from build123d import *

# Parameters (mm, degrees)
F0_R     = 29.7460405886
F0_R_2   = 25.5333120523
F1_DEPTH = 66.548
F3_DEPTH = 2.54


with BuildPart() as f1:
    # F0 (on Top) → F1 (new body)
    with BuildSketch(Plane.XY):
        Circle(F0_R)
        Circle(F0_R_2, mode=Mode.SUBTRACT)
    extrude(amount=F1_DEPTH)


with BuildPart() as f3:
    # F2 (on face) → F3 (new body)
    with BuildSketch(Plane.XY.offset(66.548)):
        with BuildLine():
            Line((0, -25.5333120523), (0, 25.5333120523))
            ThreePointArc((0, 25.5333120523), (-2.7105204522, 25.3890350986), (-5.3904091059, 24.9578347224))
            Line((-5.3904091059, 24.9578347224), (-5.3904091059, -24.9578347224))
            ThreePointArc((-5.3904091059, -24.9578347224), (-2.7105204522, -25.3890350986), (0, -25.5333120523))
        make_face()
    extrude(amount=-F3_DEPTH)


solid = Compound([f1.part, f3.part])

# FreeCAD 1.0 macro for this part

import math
import FreeCAD as App
import Part
import Sketcher
from FreeCAD import Vector
Q = App.Units.Quantity

doc = App.newDocument("Part")
params = doc.addObject("Spreadsheet::Sheet", "Params")
for row, (alias, value) in enumerate([
    ("pad1_length", "2.62 in"),
    ("pad2_length", "0.1 in"),
], start=1):
    params.set(f"A{row}", alias)
    params.set(f"B{row}", "=" + value)
    params.setAlias(f"B{row}", alias)

body = doc.addObject("PartDesign::Body", "Body")

sketch1 = doc.addObject("Sketcher::SketchObject", "Sketch")
body.addObject(sketch1)
sketch1.AttachmentSupport = (doc.XY_Plane, [""])
sketch1.MapMode = "FlatFace"
sketch1.addGeometry([
    Part.Circle(Vector(0, 0, 0), Vector(0, 0, 1), 30),
    Part.Circle(Vector(0, 0, 0), Vector(0, 0, 1), 26),
], False)
sketch1.addConstraint([
    Sketcher.Constraint("Coincident", 0, 3, -1, 1),
    Sketcher.Constraint("Coincident", 1, 3, -1, 1),
    Sketcher.Constraint("Diameter", 0, Q("59.492081 mm")),
    Sketcher.Constraint("Diameter", 1, Q("51.066624 mm")),
])
pad1 = doc.addObject("PartDesign::Pad", "Pad")
body.addObject(pad1)
pad1.Profile = sketch1
pad1.setExpression("Length", "Params.pad1_length")
body2 = doc.addObject("PartDesign::Body", "Body001")

sketch2 = doc.addObject("Sketcher::SketchObject", "Sketch001")
body2.addObject(sketch2)
sketch2.AttachmentSupport = (doc.getObject("XY_Plane001"), [""])
sketch2.MapMode = "FlatFace"
sketch2.AttachmentOffset = App.Placement(Vector(0, 0, 2.62 * 25.4), App.Rotation())
sketch2.addGeometry([
    Part.LineSegment(Vector(0, -26, 0), Vector(0, 26, 0)),
    Part.ArcOfCircle(Part.Circle(Vector(0, 0, 0), Vector(0, 0, 1), 26), math.radians(90), math.radians(102.19)),
    Part.LineSegment(Vector(-5, 25, 0), Vector(-5, -25, 0)),
    Part.ArcOfCircle(Part.Circle(Vector(0, 0, 0), Vector(0, 0, 1), 26), math.radians(-102.19), math.radians(-90)),
], False)
sketch2.addConstraint([
    Sketcher.Constraint("Coincident", 0, 2, 1, 1),
    Sketcher.Constraint("Coincident", 1, 2, 2, 1),
    Sketcher.Constraint("Coincident", 2, 2, 3, 1),
    Sketcher.Constraint("Coincident", 3, 2, 0, 1),
    Sketcher.Constraint("Vertical", 0),
    Sketcher.Constraint("Vertical", 2),
    Sketcher.Constraint("Coincident", 1, 3, -1, 1),
    Sketcher.Constraint("Coincident", 3, 3, -1, 1),
    Sketcher.Constraint("Equal", 1, 3),
    Sketcher.Constraint("PointOnObject", 0, 2, -2),
    Sketcher.Constraint("Radius", 1, Q("25.533312 mm")),
    Sketcher.Constraint("DistanceY", 2, 2, 2, 1, Q("49.915669 mm")),
])
pad2 = doc.addObject("PartDesign::Pad", "Pad001")
body2.addObject(pad2)
pad2.Profile = sketch2
pad2.setExpression("Length", "Params.pad2_length")
pad2.Reversed = True

doc.recompute()
